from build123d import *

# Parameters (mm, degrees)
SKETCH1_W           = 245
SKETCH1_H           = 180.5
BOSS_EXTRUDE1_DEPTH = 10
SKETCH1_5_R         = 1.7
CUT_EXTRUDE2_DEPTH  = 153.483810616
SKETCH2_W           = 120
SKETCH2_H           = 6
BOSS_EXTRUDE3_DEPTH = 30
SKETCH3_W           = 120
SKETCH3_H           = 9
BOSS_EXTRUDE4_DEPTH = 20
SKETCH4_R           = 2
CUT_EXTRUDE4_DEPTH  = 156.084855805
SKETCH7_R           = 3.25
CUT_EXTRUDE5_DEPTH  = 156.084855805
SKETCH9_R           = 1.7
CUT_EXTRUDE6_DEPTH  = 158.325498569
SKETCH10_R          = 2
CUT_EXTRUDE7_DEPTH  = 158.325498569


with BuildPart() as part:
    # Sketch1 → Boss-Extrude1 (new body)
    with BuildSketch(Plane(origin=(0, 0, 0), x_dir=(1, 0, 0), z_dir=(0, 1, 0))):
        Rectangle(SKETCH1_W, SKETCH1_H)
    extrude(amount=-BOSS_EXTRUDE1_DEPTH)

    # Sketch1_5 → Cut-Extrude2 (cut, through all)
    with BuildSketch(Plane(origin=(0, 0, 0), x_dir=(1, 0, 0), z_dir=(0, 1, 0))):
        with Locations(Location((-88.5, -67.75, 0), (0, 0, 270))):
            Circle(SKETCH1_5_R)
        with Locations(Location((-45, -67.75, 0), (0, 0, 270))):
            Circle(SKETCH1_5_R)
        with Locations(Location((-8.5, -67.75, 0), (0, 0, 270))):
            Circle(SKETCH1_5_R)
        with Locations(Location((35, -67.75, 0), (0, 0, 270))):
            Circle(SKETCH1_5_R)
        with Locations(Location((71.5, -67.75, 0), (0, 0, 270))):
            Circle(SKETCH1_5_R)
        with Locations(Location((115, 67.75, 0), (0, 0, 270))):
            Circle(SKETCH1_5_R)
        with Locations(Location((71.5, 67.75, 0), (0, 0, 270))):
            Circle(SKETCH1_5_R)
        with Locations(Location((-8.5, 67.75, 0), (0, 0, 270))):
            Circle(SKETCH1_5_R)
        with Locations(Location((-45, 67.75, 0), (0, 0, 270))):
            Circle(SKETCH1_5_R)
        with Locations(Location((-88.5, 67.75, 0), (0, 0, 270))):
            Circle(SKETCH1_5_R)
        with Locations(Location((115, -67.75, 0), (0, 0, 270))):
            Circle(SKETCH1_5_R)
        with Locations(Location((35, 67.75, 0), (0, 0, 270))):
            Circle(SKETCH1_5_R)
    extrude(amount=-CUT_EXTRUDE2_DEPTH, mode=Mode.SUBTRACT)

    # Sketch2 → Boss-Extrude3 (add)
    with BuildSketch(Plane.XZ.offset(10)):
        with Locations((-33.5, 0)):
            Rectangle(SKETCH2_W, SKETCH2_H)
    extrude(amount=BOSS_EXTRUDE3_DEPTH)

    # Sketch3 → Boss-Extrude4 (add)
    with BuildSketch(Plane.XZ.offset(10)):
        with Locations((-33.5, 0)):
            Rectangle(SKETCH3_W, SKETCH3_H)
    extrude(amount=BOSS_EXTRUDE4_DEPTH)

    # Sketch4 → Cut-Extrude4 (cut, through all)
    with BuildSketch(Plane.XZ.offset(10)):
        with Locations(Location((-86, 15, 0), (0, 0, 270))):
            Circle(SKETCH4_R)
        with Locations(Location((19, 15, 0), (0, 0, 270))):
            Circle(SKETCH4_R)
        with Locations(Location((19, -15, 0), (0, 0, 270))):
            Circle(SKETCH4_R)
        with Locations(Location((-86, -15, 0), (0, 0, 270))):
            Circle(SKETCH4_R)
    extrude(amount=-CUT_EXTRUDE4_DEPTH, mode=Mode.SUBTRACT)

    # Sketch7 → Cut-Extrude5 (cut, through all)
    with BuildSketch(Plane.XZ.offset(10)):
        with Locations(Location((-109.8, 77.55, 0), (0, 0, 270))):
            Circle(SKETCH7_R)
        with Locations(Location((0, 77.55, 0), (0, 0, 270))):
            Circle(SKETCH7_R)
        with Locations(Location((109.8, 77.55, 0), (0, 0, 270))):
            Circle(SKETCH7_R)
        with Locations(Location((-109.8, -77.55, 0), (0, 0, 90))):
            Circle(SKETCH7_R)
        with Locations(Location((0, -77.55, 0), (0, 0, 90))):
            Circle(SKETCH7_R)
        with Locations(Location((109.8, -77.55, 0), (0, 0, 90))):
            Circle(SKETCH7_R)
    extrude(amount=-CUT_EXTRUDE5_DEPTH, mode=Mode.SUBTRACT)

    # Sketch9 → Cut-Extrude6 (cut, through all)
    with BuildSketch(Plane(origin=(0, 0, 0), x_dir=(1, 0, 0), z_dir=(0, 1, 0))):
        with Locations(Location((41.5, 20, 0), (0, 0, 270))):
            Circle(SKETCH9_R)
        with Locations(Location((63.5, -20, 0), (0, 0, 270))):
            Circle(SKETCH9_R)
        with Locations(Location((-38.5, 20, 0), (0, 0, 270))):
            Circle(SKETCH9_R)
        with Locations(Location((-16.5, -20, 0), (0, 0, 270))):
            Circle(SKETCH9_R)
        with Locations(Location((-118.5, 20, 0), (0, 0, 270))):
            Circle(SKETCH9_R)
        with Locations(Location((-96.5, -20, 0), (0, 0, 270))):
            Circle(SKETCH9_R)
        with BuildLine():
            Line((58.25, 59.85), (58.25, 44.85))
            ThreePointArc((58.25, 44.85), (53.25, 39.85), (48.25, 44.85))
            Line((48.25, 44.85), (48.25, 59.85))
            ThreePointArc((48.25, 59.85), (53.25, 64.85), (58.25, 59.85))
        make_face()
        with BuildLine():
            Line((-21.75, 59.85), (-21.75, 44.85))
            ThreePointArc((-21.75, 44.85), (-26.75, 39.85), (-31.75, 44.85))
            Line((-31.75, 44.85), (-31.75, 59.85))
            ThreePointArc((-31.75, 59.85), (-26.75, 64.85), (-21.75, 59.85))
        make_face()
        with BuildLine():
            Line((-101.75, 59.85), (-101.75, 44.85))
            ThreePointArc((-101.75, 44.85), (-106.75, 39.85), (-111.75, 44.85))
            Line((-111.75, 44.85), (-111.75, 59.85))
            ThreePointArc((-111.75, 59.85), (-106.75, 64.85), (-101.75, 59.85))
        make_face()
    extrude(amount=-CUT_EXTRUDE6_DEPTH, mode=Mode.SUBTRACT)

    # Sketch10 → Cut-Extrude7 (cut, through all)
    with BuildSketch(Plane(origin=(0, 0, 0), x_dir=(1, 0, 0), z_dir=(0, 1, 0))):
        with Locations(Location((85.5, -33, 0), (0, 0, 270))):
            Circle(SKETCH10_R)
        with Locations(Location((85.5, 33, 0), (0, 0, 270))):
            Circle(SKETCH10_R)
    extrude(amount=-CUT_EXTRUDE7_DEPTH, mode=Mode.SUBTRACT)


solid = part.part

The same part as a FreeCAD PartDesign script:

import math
import FreeCAD as App
import Part
import Sketcher
from FreeCAD import Vector


def add_polygon(sketch, points):
    """Adds a closed chain of lines whose ends are joined by coincident constraints."""
    first, n = sketch.GeometryCount, len(points)
    for a, b in zip(points, points[1:] + points[:1]):
        sketch.addGeometry(Part.LineSegment(App.Vector(*a, 0), App.Vector(*b, 0)), False)
    for i in range(n):
        sketch.addConstraint(Sketcher.Constraint("Coincident", first + i, 2, first + (i + 1) % n, 1))

doc = App.newDocument("Part")
body = doc.addObject("PartDesign::Body", "Body")

# Sketch on XZ plane
sketch1 = body.newObject("Sketcher::SketchObject", "Sketch")
sketch1.AttachmentSupport = (doc.getObject("XZ_Plane"), [""])
sketch1.MapMode = "FlatFace"
add_polygon(sketch1, [(-122, -90), (-122, 90), (122, 90), (122, -90)])  # lines 0-3
sketch1.addConstraint([
    Sketcher.Constraint("Vertical", 0),
    Sketcher.Constraint("Horizontal", 1),
    Sketcher.Constraint("Vertical", 2),
    Sketcher.Constraint("Horizontal", 3),
    Sketcher.Constraint("Symmetric", 0, 2, 2, 2, -1, 1),
    Sketcher.Constraint("DistanceX", 1, 1, 1, 2, 245.0),
    Sketcher.Constraint("DistanceY", 0, 1, 0, 2, 180.5),
])
pad1 = body.newObject("PartDesign::Pad", "Pad")
pad1.Profile = sketch1
pad1.Length = 10

# Sketch on XZ plane
sketch2 = body.newObject("Sketcher::SketchObject", "Sketch001")
sketch2.AttachmentSupport = (doc.getObject("XZ_Plane"), [""])
sketch2.MapMode = "FlatFace"
sketch2.addGeometry([
    Part.Circle(Vector(-88.5, 67.8, 0), Vector(0, 0, 1), 1.7),  # 0
    Part.Circle(Vector(-45, 67.8, 0), Vector(0, 0, 1), 1.7),  # 1
    Part.Circle(Vector(-8.5, 67.8, 0), Vector(0, 0, 1), 1.7),  # 2
    Part.Circle(Vector(35, 67.8, 0), Vector(0, 0, 1), 1.7),  # 3
    Part.Circle(Vector(71.5, 67.8, 0), Vector(0, 0, 1), 1.7),  # 4
    Part.Circle(Vector(115, -67.8, 0), Vector(0, 0, 1), 1.7),  # 5
    Part.Circle(Vector(71.5, -67.8, 0), Vector(0, 0, 1), 1.7),  # 6
    Part.Circle(Vector(-8.5, -67.8, 0), Vector(0, 0, 1), 1.7),  # 7
    Part.Circle(Vector(-45, -67.8, 0), Vector(0, 0, 1), 1.7),  # 8
    Part.Circle(Vector(-88.5, -67.8, 0), Vector(0, 0, 1), 1.7),  # 9
    Part.Circle(Vector(115, 67.8, 0), Vector(0, 0, 1), 1.7),  # 10
    Part.Circle(Vector(35, -67.8, 0), Vector(0, 0, 1), 1.7),  # 11
], False)
sketch2.addConstraint([
    Sketcher.Constraint("Equal", 0, 1),
    Sketcher.Constraint("Equal", 1, 2),
    Sketcher.Constraint("Equal", 2, 3),
    Sketcher.Constraint("Equal", 3, 4),
    Sketcher.Constraint("Equal", 4, 5),
    Sketcher.Constraint("Equal", 5, 6),
    Sketcher.Constraint("Equal", 6, 7),
    Sketcher.Constraint("Equal", 7, 8),
    Sketcher.Constraint("Equal", 8, 9),
    Sketcher.Constraint("Equal", 9, 10),
    Sketcher.Constraint("Equal", 10, 11),
    Sketcher.Constraint("Symmetric", 4, 3, 6, 3, -1),
    Sketcher.Constraint("Symmetric", 2, 3, 7, 3, -1),
    Sketcher.Constraint("Symmetric", 1, 3, 8, 3, -1),
    Sketcher.Constraint("Symmetric", 0, 3, 9, 3, -1),
    Sketcher.Constraint("Symmetric", 5, 3, 10, 3, -1),
    Sketcher.Constraint("Symmetric", 3, 3, 11, 3, -1),
    Sketcher.Constraint("Horizontal", 0, 3, 1, 3),
    Sketcher.Constraint("Horizontal", 1, 3, 2, 3),
    Sketcher.Constraint("Horizontal", 2, 3, 3, 3),
    Sketcher.Constraint("Horizontal", 3, 3, 4, 3),
    Sketcher.Constraint("Horizontal", 5, 3, 6, 3),
    Sketcher.Constraint("Diameter", 0, 3.4),
    Sketcher.Constraint("DistanceX", 1, 3, -1, 1, 45.0),
    Sketcher.Constraint("DistanceX", -1, 1, 3, 3, 35.0),
    Sketcher.Constraint("DistanceX", -1, 1, 5, 3, 115.0),
    Sketcher.Constraint("DistanceX", 0, 3, 2, 3, 80.0),
    Sketcher.Constraint("DistanceX", 2, 3, 4, 3, 80.0),
    Sketcher.Constraint("DistanceX", 0, 3, -1, 1, 88.5),
    Sketcher.Constraint("DistanceY", 5, 3, 4, 3, 135.5),
])
pocket1 = body.newObject("PartDesign::Pocket", "Pocket")
pocket1.Profile = sketch2
pocket1.Type = "ThroughAll"
pocket1.Reversed = True

# Sketch on XZ plane
sketch3 = body.newObject("Sketcher::SketchObject", "Sketch002")
sketch3.AttachmentSupport = (doc.getObject("XZ_Plane"), [""])
sketch3.MapMode = "FlatFace"
sketch3.AttachmentOffset = App.Placement(Vector(0, 0, 10), App.Rotation())
add_polygon(sketch3, [(-94, 3), (-94, -3), (26, -3), (26, 3)])  # lines 0-3
sketch3.addConstraint([
    Sketcher.Constraint("Vertical", 0),
    Sketcher.Constraint("Horizontal", 1),
    Sketcher.Constraint("Vertical", 2),
    Sketcher.Constraint("Horizontal", 3),
    Sketcher.Constraint("DistanceX", 1, 1, 1, 2, 120.0),
    Sketcher.Constraint("DistanceY", 0, 2, 0, 1, 6.0),
    Sketcher.Constraint("DistanceY", 0, 2, -1, 1, 3.0),
    Sketcher.Constraint("DistanceX", 0, 2, -1, 1, 93.5),
])
pad2 = body.newObject("PartDesign::Pad", "Pad001")
pad2.Profile = sketch3
pad2.Length = 30

# Sketch on XZ plane
sketch4 = body.newObject("Sketcher::SketchObject", "Sketch003")
sketch4.AttachmentSupport = (doc.getObject("XZ_Plane"), [""])
sketch4.MapMode = "FlatFace"
sketch4.AttachmentOffset = App.Placement(Vector(0, 0, 10), App.Rotation())
add_polygon(sketch4, [(-94, 4), (-94, -4), (26, -4), (26, 4)])  # lines 0-3
sketch4.addConstraint([
    Sketcher.Constraint("Vertical", 0),
    Sketcher.Constraint("Horizontal", 1),
    Sketcher.Constraint("Vertical", 2),
    Sketcher.Constraint("Horizontal", 3),
    Sketcher.Constraint("DistanceX", 1, 1, 1, 2, 120.0),
    Sketcher.Constraint("DistanceY", 0, 2, 0, 1, 9.0),
    Sketcher.Constraint("DistanceX", 0, 2, -1, 1, 93.5),
    Sketcher.Constraint("DistanceY", 0, 2, -1, 1, 4.5),
])
pad3 = body.newObject("PartDesign::Pad", "Pad002")
pad3.Profile = sketch4
pad3.Length = 20

# Sketch on XZ plane
sketch5 = body.newObject("Sketcher::SketchObject", "Sketch004")
sketch5.AttachmentSupport = (doc.getObject("XZ_Plane"), [""])
sketch5.MapMode = "FlatFace"
sketch5.AttachmentOffset = App.Placement(Vector(0, 0, 10), App.Rotation())
sketch5.addGeometry([
    Part.Circle(Vector(-86, 15, 0), Vector(0, 0, 1), 2),
    Part.Circle(Vector(19, 15, 0), Vector(0, 0, 1), 2),
    Part.Circle(Vector(19, -15, 0), Vector(0, 0, 1), 2),
    Part.Circle(Vector(-86, -15, 0), Vector(0, 0, 1), 2),
], False)
sketch5.addConstraint([
    Sketcher.Constraint("Equal", 0, 1),
    Sketcher.Constraint("Equal", 1, 2),
    Sketcher.Constraint("Equal", 2, 3),
    Sketcher.Constraint("Symmetric", 1, 3, 2, 3, -1),
    Sketcher.Constraint("Symmetric", 0, 3, 3, 3, -1),
    Sketcher.Constraint("Horizontal", 0, 3, 1, 3),
    Sketcher.Constraint("Diameter", 0, 4.0),
    Sketcher.Constraint("DistanceX", 0, 3, -1, 1, 86.0),
    Sketcher.Constraint("DistanceY", -1, 1, 0, 3, 15.0),
    Sketcher.Constraint("DistanceX", -1, 1, 1, 3, 19.0),
])
pocket2 = body.newObject("PartDesign::Pocket", "Pocket001")
pocket2.Profile = sketch5
pocket2.Type = "ThroughAll"

# Sketch on XZ plane
sketch6 = body.newObject("Sketcher::SketchObject", "Sketch005")
sketch6.AttachmentSupport = (doc.getObject("XZ_Plane"), [""])
sketch6.MapMode = "FlatFace"
sketch6.AttachmentOffset = App.Placement(Vector(0, 0, 10), App.Rotation())
sketch6.addGeometry([
    Part.Circle(Vector(-109.8, 77.5, 0), Vector(0, 0, 1), 3.2),  # 0
    Part.Circle(Vector(0, 77.5, 0), Vector(0, 0, 1), 3.2),  # 1
    Part.Circle(Vector(109.8, 77.5, 0), Vector(0, 0, 1), 3.2),  # 2
    Part.Circle(Vector(-109.8, -77.5, 0), Vector(0, 0, 1), 3.2),  # 3
    Part.Circle(Vector(0, -77.5, 0), Vector(0, 0, 1), 3.2),  # 4
    Part.Circle(Vector(109.8, -77.5, 0), Vector(0, 0, 1), 3.2),  # 5
], False)
sketch6.addConstraint([
    Sketcher.Constraint("Equal", 0, 1),
    Sketcher.Constraint("Equal", 1, 2),
    Sketcher.Constraint("Equal", 2, 3),
    Sketcher.Constraint("Equal", 3, 4),
    Sketcher.Constraint("Equal", 4, 5),
    Sketcher.Constraint("Symmetric", 2, 3, 3, 3, -1, 1),
    Sketcher.Constraint("Symmetric", 1, 3, 4, 3, -1, 1),
    Sketcher.Constraint("Symmetric", 0, 3, 5, 3, -1, 1),
    Sketcher.Constraint("Symmetric", 0, 3, 2, 3, -2),
    Sketcher.Constraint("PointOnObject", 1, 3, -2),
    Sketcher.Constraint("Horizontal", 0, 3, 1, 3),
    Sketcher.Constraint("Diameter", 0, 6.5),
    Sketcher.Constraint("DistanceX", 0, 3, -1, 1, 109.8),
    Sketcher.Constraint("DistanceY", 3, 3, 0, 3, 155.1),
])
pocket3 = body.newObject("PartDesign::Pocket", "Pocket002")
pocket3.Profile = sketch6
pocket3.Type = "ThroughAll"

# Sketch on XZ plane
sketch7 = body.newObject("Sketcher::SketchObject", "Sketch006")
sketch7.AttachmentSupport = (doc.getObject("XZ_Plane"), [""])
sketch7.MapMode = "FlatFace"
sketch7.addGeometry([
    Part.Circle(Vector(41.5, -20, 0), Vector(0, 0, 1), 1.7),  # 0
    Part.Circle(Vector(63.5, 20, 0), Vector(0, 0, 1), 1.7),  # 1
    Part.Circle(Vector(-38.5, -20, 0), Vector(0, 0, 1), 1.7),  # 2
    Part.Circle(Vector(-16.5, 20, 0), Vector(0, 0, 1), 1.7),  # 3
    Part.Circle(Vector(-118.5, -20, 0), Vector(0, 0, 1), 1.7),  # 4
    Part.Circle(Vector(-96.5, 20, 0), Vector(0, 0, 1), 1.7),  # 5
    Part.LineSegment(Vector(58.2, -44.9, 0), Vector(58.2, -59.9, 0)),  # 6
    Part.ArcOfCircle(Part.Circle(Vector(53.2, -59.9, 0), Vector(0, 0, 1), 5), math.radians(180), math.radians(360)),  # 7
    Part.LineSegment(Vector(48.2, -59.9, 0), Vector(48.2, -44.9, 0)),  # 8
    Part.ArcOfCircle(Part.Circle(Vector(53.2, -44.9, 0), Vector(0, 0, 1), 5), math.radians(0), math.radians(180)),  # 9
    Part.LineSegment(Vector(-21.8, -44.9, 0), Vector(-21.8, -59.9, 0)),  # 10
    Part.ArcOfCircle(Part.Circle(Vector(-26.8, -59.9, 0), Vector(0, 0, 1), 5), math.radians(180), math.radians(360)),  # 11
    Part.LineSegment(Vector(-31.8, -59.9, 0), Vector(-31.8, -44.9, 0)),  # 12
    Part.ArcOfCircle(Part.Circle(Vector(-26.8, -44.9, 0), Vector(0, 0, 1), 5), math.radians(0), math.radians(180)),  # 13
    Part.LineSegment(Vector(-101.8, -44.9, 0), Vector(-101.8, -59.9, 0)),  # 14
    Part.ArcOfCircle(Part.Circle(Vector(-106.8, -59.9, 0), Vector(0, 0, 1), 5), math.radians(180), math.radians(360)),  # 15
    Part.LineSegment(Vector(-111.8, -59.9, 0), Vector(-111.8, -44.9, 0)),  # 16
    Part.ArcOfCircle(Part.Circle(Vector(-106.8, -44.9, 0), Vector(0, 0, 1), 5), math.radians(0), math.radians(180)),  # 17
], False)
sketch7.addConstraint([
    Sketcher.Constraint("Tangent", 6, 2, 7, 2),
    Sketcher.Constraint("Tangent", 7, 1, 8, 1),
    Sketcher.Constraint("Tangent", 8, 2, 9, 2),
    Sketcher.Constraint("Tangent", 9, 1, 6, 1),
    Sketcher.Constraint("Tangent", 10, 2, 11, 2),
    Sketcher.Constraint("Tangent", 11, 1, 12, 1),
    Sketcher.Constraint("Tangent", 12, 2, 13, 2),
    Sketcher.Constraint("Tangent", 13, 1, 10, 1),
    Sketcher.Constraint("Tangent", 14, 2, 15, 2),
    Sketcher.Constraint("Tangent", 15, 1, 16, 1),
    Sketcher.Constraint("Tangent", 16, 2, 17, 2),
    Sketcher.Constraint("Tangent", 17, 1, 14, 1),
    Sketcher.Constraint("Vertical", 6),
    Sketcher.Constraint("Vertical", 8),
    Sketcher.Constraint("Vertical", 10),
    Sketcher.Constraint("Vertical", 12),
    Sketcher.Constraint("Vertical", 14),
    Sketcher.Constraint("Vertical", 16),
    Sketcher.Constraint("Equal", 0, 1),
    Sketcher.Constraint("Equal", 1, 2),
    Sketcher.Constraint("Equal", 2, 3),
    Sketcher.Constraint("Equal", 3, 4),
    Sketcher.Constraint("Equal", 4, 5),
    Sketcher.Constraint("Equal", 9, 11),
    Sketcher.Constraint("Equal", 13, 15),
    Sketcher.Constraint("Horizontal", 0, 3, 2, 3),
    Sketcher.Constraint("Horizontal", 1, 3, 3, 3),
    Sketcher.Constraint("Horizontal", 2, 3, 4, 3),
    Sketcher.Constraint("Horizontal", 3, 3, 5, 3),
    Sketcher.Constraint("Horizontal", 7, 3, 11, 3),
    Sketcher.Constraint("Horizontal", 9, 3, 13, 3),
    Sketcher.Constraint("Horizontal", 11, 3, 15, 3),
    Sketcher.Constraint("Horizontal", 13, 3, 17, 3),
    Sketcher.Constraint("Radius", 7, 5.0),
    Sketcher.Constraint("Diameter", 0, 3.4),
    Sketcher.Constraint("DistanceY", 6, 2, 6, 1, 15.0),
    Sketcher.Constraint("DistanceY", 0, 3, -1, 1, 20.0),
    Sketcher.Constraint("DistanceY", -1, 1, 1, 3, 20.0),
    Sketcher.Constraint("DistanceX", 0, 3, 1, 3, 22.0),
    Sketcher.Constraint("DistanceX", 2, 3, 0, 3, 80.0),
    Sketcher.Constraint("DistanceX", 2, 3, 3, 3, 22.0),
    Sketcher.Constraint("DistanceX", 4, 3, 2, 3, 80.0),
    Sketcher.Constraint("DistanceX", 4, 3, 5, 3, 22.0),
    Sketcher.Constraint("DistanceX", 11, 3, 7, 3, 80.0),
    Sketcher.Constraint("DistanceX", 15, 3, 11, 3, 80.0),
    Sketcher.Constraint("DistanceX", -1, 1, 0, 3, 41.5),
    Sketcher.Constraint("DistanceX", -1, 1, 7, 3, 53.25),
    Sketcher.Constraint("DistanceY", 7, 3, -1, 1, 59.85),
])
pocket4 = body.newObject("PartDesign::Pocket", "Pocket003")
pocket4.Profile = sketch7
pocket4.Type = "ThroughAll"
pocket4.Reversed = True

# Sketch on XZ plane
sketch8 = body.newObject("Sketcher::SketchObject", "Sketch007")
sketch8.AttachmentSupport = (doc.getObject("XZ_Plane"), [""])
sketch8.MapMode = "FlatFace"
sketch8.addGeometry([
    Part.Circle(Vector(85.5, 33, 0), Vector(0, 0, 1), 2),
    Part.Circle(Vector(85.5, -33, 0), Vector(0, 0, 1), 2),
], False)
sketch8.addConstraint([
    Sketcher.Constraint("Equal", 0, 1),
    Sketcher.Constraint("Symmetric", 0, 3, 1, 3, -1),
    Sketcher.Constraint("Diameter", 0, 4.0),
    Sketcher.Constraint("DistanceY", -1, 1, 0, 3, 33.0),
    Sketcher.Constraint("DistanceX", -1, 1, 0, 3, 85.5),
])
pocket5 = body.newObject("PartDesign::Pocket", "Pocket004")
pocket5.Profile = sketch8
pocket5.Type = "ThroughAll"
pocket5.Reversed = True

doc.recompute()
